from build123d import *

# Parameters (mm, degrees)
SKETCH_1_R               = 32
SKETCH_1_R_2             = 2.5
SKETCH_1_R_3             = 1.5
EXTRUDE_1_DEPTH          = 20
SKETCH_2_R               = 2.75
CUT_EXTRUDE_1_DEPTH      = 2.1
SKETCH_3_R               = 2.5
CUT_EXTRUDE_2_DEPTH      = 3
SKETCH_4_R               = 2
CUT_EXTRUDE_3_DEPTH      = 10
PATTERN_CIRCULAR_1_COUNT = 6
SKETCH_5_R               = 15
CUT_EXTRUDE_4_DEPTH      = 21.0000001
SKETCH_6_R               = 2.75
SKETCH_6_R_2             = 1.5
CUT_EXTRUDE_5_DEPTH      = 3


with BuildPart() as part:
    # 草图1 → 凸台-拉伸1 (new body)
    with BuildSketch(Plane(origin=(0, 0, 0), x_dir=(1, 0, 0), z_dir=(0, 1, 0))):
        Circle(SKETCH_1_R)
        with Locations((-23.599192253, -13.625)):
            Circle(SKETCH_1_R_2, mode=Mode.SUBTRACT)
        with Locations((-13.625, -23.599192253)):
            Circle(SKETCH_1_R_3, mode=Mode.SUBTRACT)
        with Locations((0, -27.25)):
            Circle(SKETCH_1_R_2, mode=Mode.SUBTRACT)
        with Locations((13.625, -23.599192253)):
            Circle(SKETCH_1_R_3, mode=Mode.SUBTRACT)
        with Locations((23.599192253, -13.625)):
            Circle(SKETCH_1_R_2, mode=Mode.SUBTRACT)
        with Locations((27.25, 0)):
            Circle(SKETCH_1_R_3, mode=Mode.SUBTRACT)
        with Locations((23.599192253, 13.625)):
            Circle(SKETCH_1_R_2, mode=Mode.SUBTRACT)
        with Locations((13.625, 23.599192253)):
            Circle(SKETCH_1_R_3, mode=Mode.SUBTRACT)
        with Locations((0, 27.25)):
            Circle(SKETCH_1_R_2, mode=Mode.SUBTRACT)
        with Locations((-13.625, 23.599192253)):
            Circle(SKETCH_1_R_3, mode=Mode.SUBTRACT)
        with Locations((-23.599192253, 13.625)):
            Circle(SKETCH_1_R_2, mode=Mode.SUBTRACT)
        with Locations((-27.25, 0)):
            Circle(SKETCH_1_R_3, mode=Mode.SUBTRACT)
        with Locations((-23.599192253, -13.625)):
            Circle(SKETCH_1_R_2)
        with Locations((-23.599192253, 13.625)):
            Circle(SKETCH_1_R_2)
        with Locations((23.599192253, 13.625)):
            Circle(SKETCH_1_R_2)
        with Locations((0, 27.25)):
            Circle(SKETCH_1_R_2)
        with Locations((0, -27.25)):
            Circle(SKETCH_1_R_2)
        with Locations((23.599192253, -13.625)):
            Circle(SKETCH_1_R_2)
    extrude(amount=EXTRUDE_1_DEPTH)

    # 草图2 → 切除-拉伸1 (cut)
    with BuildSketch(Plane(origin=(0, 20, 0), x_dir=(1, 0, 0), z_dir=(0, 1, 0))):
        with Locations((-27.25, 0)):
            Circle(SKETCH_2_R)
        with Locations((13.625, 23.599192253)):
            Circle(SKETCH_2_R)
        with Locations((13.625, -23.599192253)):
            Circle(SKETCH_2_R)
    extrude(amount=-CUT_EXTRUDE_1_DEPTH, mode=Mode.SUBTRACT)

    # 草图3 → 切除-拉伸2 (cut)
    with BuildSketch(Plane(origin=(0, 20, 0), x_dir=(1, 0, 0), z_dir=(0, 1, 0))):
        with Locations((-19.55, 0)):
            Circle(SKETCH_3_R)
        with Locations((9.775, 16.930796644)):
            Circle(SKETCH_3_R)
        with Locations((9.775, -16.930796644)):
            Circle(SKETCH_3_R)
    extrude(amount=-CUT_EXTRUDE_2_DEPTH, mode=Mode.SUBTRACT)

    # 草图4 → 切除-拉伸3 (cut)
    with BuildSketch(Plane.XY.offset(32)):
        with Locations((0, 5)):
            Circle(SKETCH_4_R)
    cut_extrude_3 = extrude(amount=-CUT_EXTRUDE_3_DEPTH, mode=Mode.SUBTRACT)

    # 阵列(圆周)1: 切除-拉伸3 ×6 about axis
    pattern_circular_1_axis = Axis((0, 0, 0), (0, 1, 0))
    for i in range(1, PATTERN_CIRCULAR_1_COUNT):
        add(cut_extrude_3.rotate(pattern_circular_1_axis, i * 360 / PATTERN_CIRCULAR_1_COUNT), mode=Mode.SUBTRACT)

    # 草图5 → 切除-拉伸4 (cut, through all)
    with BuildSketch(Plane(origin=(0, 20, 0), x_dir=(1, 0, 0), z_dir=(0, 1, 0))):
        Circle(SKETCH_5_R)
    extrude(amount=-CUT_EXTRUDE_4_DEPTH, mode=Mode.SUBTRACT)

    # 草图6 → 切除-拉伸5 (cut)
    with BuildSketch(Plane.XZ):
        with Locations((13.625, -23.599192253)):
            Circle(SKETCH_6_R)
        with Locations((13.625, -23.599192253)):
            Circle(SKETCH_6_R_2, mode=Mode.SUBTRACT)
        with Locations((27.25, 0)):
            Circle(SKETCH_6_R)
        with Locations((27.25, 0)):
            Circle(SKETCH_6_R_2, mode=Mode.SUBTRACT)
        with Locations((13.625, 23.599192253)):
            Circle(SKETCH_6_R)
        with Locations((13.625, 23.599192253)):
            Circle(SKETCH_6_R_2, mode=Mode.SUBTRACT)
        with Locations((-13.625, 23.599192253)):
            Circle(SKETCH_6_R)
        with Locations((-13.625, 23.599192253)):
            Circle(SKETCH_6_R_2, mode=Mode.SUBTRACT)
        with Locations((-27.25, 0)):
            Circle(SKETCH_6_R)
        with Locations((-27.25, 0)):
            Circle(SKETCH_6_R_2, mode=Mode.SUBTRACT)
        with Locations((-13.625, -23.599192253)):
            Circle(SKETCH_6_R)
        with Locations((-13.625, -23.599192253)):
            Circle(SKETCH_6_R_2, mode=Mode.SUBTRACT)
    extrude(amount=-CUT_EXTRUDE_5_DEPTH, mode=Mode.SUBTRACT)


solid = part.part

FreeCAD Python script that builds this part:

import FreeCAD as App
import Part
import Sketcher
from FreeCAD import Vector

doc = App.newDocument("Part")
body = doc.addObject("PartDesign::Body", "Body")

sketch1 = body.newObject("Sketcher::SketchObject", "Sketch")
sketch1.AttachmentSupport = (doc.getObject("XZ_Plane"), [""])
sketch1.MapMode = "FlatFace"
sketch1.addGeometry(Part.Circle(Vector(0, 0, 0), Vector(0, 0, 1), 32), False)
sketch1.addGeometry(Part.Circle(Vector(-13.6, 23.6, 0), Vector(0, 0, 1), 1.5), False)
sketch1.addGeometry(Part.Circle(Vector(13.6, 23.6, 0), Vector(0, 0, 1), 1.5), False)
sketch1.addGeometry(Part.Circle(Vector(-27.2, 0, 0), Vector(0, 0, 1), 1.5), False)
sketch1.addGeometry(Part.Circle(Vector(-13.6, -23.6, 0), Vector(0, 0, 1), 1.5), False)
sketch1.addGeometry(Part.Circle(Vector(27.2, 0, 0), Vector(0, 0, 1), 1.5), False)
sketch1.addGeometry(Part.Circle(Vector(13.6, -23.6, 0), Vector(0, 0, 1), 1.5), False)
sketch1.addConstraint(Sketcher.Constraint("Coincident", 0, 3, -1, 1))
sketch1.addConstraint(Sketcher.Constraint("Equal", 1, 2))
sketch1.addConstraint(Sketcher.Constraint("Equal", 2, 3))
sketch1.addConstraint(Sketcher.Constraint("Equal", 3, 4))
sketch1.addConstraint(Sketcher.Constraint("Equal", 4, 5))
sketch1.addConstraint(Sketcher.Constraint("Equal", 5, 6))
sketch1.addConstraint(Sketcher.Constraint("Symmetric", 2, 3, 4, 3, -1, 1))
sketch1.addConstraint(Sketcher.Constraint("Symmetric", 3, 3, 5, 3, -1, 1))
sketch1.addConstraint(Sketcher.Constraint("Symmetric", 1, 3, 6, 3, -1, 1))
sketch1.addConstraint(Sketcher.Constraint("Symmetric", 1, 3, 2, 3, -2))
sketch1.addConstraint(Sketcher.Constraint("PointOnObject", 3, 3, -1))
sketch1.addConstraint(Sketcher.Constraint("Diameter", 0, 64.0))
sketch1.addConstraint(Sketcher.Constraint("Diameter", 1, 3.0))
sketch1.addConstraint(Sketcher.Constraint("DistanceX", 3, 3, 5, 3, 54.5))
sketch1.addConstraint(Sketcher.Constraint("DistanceX", 1, 3, 2, 3, 27.25))
sketch1.addConstraint(Sketcher.Constraint("DistanceY", -1, 1, 1, 3, 23.599192))
pad1 = body.newObject("PartDesign::Pad", "Pad")
pad1.Profile = sketch1
pad1.Length = 20
pad1.Reversed = True

sketch2 = body.newObject("Sketcher::SketchObject", "Sketch001")
sketch2.AttachmentSupport = (doc.getObject("XZ_Plane"), [""])
sketch2.MapMode = "FlatFace"
sketch2.AttachmentOffset = App.Placement(Vector(0, 0, -20), App.Rotation())
sketch2.addGeometry(Part.Circle(Vector(-27.2, 0, 0), Vector(0, 0, 1), 2.8), False)
sketch2.addGeometry(Part.Circle(Vector(13.6, -23.6, 0), Vector(0, 0, 1), 2.8), False)
sketch2.addGeometry(Part.Circle(Vector(13.6, 23.6, 0), Vector(0, 0, 1), 2.8), False)
sketch2.addConstraint(Sketcher.Constraint("Equal", 0, 1))
sketch2.addConstraint(Sketcher.Constraint("Equal", 1, 2))
sketch2.addConstraint(Sketcher.Constraint("Symmetric", 1, 3, 2, 3, -1))
sketch2.addConstraint(Sketcher.Constraint("PointOnObject", 0, 3, -1))
sketch2.addConstraint(Sketcher.Constraint("Diameter", 0, 5.5))
sketch2.addConstraint(Sketcher.Constraint("DistanceX", 0, 3, -1, 1, 27.25))
sketch2.addConstraint(Sketcher.Constraint("DistanceX", -1, 1, 1, 3, 13.625))
sketch2.addConstraint(Sketcher.Constraint("DistanceY", 1, 3, -1, 1, 23.599192))
pocket1 = body.newObject("PartDesign::Pocket", "Pocket")
pocket1.Profile = sketch2
pocket1.Length = 2.1
pocket1.Reversed = True

sketch3 = body.newObject("Sketcher::SketchObject", "Sketch002")
sketch3.AttachmentSupport = (doc.getObject("XZ_Plane"), [""])
sketch3.MapMode = "FlatFace"
sketch3.AttachmentOffset = App.Placement(Vector(0, 0, -20), App.Rotation())
sketch3.addGeometry(Part.Circle(Vector(-19.6, 0, 0), Vector(0, 0, 1), 2.5), False)
sketch3.addGeometry(Part.Circle(Vector(9.8, -16.9, 0), Vector(0, 0, 1), 2.5), False)
sketch3.addGeometry(Part.Circle(Vector(9.8, 16.9, 0), Vector(0, 0, 1), 2.5), False)
sketch3.addConstraint(Sketcher.Constraint("Equal", 0, 1))
sketch3.addConstraint(Sketcher.Constraint("Equal", 1, 2))
sketch3.addConstraint(Sketcher.Constraint("Symmetric", 1, 3, 2, 3, -1))
sketch3.addConstraint(Sketcher.Constraint("PointOnObject", 0, 3, -1))
sketch3.addConstraint(Sketcher.Constraint("Diameter", 0, 5.0))
sketch3.addConstraint(Sketcher.Constraint("DistanceX", 0, 3, -1, 1, 19.55))
sketch3.addConstraint(Sketcher.Constraint("DistanceX", -1, 1, 1, 3, 9.775))
sketch3.addConstraint(Sketcher.Constraint("DistanceY", 1, 3, -1, 1, 16.930797))
pocket2 = body.newObject("PartDesign::Pocket", "Pocket001")
pocket2.Profile = sketch3
pocket2.Length = 3
pocket2.Reversed = True

sketch4 = body.newObject("Sketcher::SketchObject", "Sketch003")
sketch4.AttachmentSupport = (doc.getObject("XY_Plane"), [""])
sketch4.MapMode = "FlatFace"
sketch4.AttachmentOffset = App.Placement(Vector(0, 0, 32), App.Rotation())
sketch4.addGeometry(Part.Circle(Vector(0, 5, 0), Vector(0, 0, 1), 2), False)
sketch4.addConstraint(Sketcher.Constraint("PointOnObject", 0, 3, -2))
sketch4.addConstraint(Sketcher.Constraint("Diameter", 0, 4.0))
sketch4.addConstraint(Sketcher.Constraint("DistanceY", -1, 1, 0, 3, 5.0))
pocket3 = body.newObject("PartDesign::Pocket", "Pocket002")
pocket3.Profile = sketch4
pocket3.Length = 10
doc.recompute()

polarpattern = body.newObject("PartDesign::PolarPattern", "PolarPattern")
polarpattern.Originals = [pocket3]
polarpattern.Axis = (doc.getObject("Y_Axis"), [""])
polarpattern.Angle = 360
polarpattern.Occurrences = 6
body.Tip = polarpattern

sketch5 = body.newObject("Sketcher::SketchObject", "Sketch004")
sketch5.AttachmentSupport = (doc.getObject("XZ_Plane"), [""])
sketch5.MapMode = "FlatFace"
sketch5.AttachmentOffset = App.Placement(Vector(0, 0, -20), App.Rotation())
sketch5.addGeometry(Part.Circle(Vector(0, 0, 0), Vector(0, 0, 1), 15), False)
sketch5.addConstraint(Sketcher.Constraint("Coincident", 0, 3, -1, 1))
sketch5.addConstraint(Sketcher.Constraint("Diameter", 0, 30.0))
pocket4 = body.newObject("PartDesign::Pocket", "Pocket003")
pocket4.Profile = sketch5
pocket4.Type = "ThroughAll"
pocket4.Reversed = True

sketch6 = body.newObject("Sketcher::SketchObject", "Sketch005")
sketch6.AttachmentSupport = (doc.getObject("XZ_Plane"), [""])
sketch6.MapMode = "FlatFace"
sketch6.addGeometry(Part.Circle(Vector(13.6, -23.6, 0), Vector(0, 0, 1), 2.8), False)
sketch6.addGeometry(Part.Circle(Vector(13.6, -23.6, 0), Vector(0, 0, 1), 1.5), False)
sketch6.addGeometry(Part.Circle(Vector(27.2, 0, 0), Vector(0, 0, 1), 2.8), False)
sketch6.addGeometry(Part.Circle(Vector(27.2, 0, 0), Vector(0, 0, 1), 1.5), False)
sketch6.addGeometry(Part.Circle(Vector(13.6, 23.6, 0), Vector(0, 0, 1), 2.8), False)
sketch6.addGeometry(Part.Circle(Vector(13.6, 23.6, 0), Vector(0, 0, 1), 1.5), False)
sketch6.addGeometry(Part.Circle(Vector(-13.6, 23.6, 0), Vector(0, 0, 1), 2.8), False)
sketch6.addGeometry(Part.Circle(Vector(-13.6, 23.6, 0), Vector(0, 0, 1), 1.5), False)
sketch6.addGeometry(Part.Circle(Vector(-27.2, 0, 0), Vector(0, 0, 1), 2.8), False)
sketch6.addGeometry(Part.Circle(Vector(-27.2, 0, 0), Vector(0, 0, 1), 1.5), False)
sketch6.addGeometry(Part.Circle(Vector(-13.6, -23.6, 0), Vector(0, 0, 1), 2.8), False)
sketch6.addGeometry(Part.Circle(Vector(-13.6, -23.6, 0), Vector(0, 0, 1), 1.5), False)
sketch6.addConstraint(Sketcher.Constraint("Coincident", 1, 3, 0, 3))
sketch6.addConstraint(Sketcher.Constraint("Coincident", 3, 3, 2, 3))
sketch6.addConstraint(Sketcher.Constraint("Coincident", 5, 3, 4, 3))
sketch6.addConstraint(Sketcher.Constraint("Coincident", 7, 3, 6, 3))
sketch6.addConstraint(Sketcher.Constraint("Coincident", 9, 3, 8, 3))
sketch6.addConstraint(Sketcher.Constraint("Coincident", 11, 3, 10, 3))
sketch6.addConstraint(Sketcher.Constraint("Equal", 0, 2))
sketch6.addConstraint(Sketcher.Constraint("Equal", 1, 3))
sketch6.addConstraint(Sketcher.Constraint("Equal", 2, 4))
sketch6.addConstraint(Sketcher.Constraint("Equal", 3, 5))
sketch6.addConstraint(Sketcher.Constraint("Equal", 4, 6))
sketch6.addConstraint(Sketcher.Constraint("Equal", 5, 7))
sketch6.addConstraint(Sketcher.Constraint("Equal", 6, 8))
sketch6.addConstraint(Sketcher.Constraint("Equal", 7, 9))
sketch6.addConstraint(Sketcher.Constraint("Equal", 8, 10))
sketch6.addConstraint(Sketcher.Constraint("Equal", 9, 11))
sketch6.addConstraint(Sketcher.Constraint("Symmetric", 0, 3, 6, 3, -1, 1))
sketch6.addConstraint(Sketcher.Constraint("Symmetric", 2, 3, 8, 3, -1, 1))
sketch6.addConstraint(Sketcher.Constraint("Symmetric", 4, 3, 10, 3, -1, 1))
sketch6.addConstraint(Sketcher.Constraint("Symmetric", 4, 3, 6, 3, -2))
sketch6.addConstraint(Sketcher.Constraint("PointOnObject", 2, 3, -1))
sketch6.addConstraint(Sketcher.Constraint("Diameter", 1, 3.0))
sketch6.addConstraint(Sketcher.Constraint("Diameter", 0, 5.5))
sketch6.addConstraint(Sketcher.Constraint("DistanceX", -1, 1, 2, 3, 27.25))
sketch6.addConstraint(Sketcher.Constraint("DistanceX", 6, 3, 4, 3, 27.25))
sketch6.addConstraint(Sketcher.Constraint("DistanceY", 0, 3, -1, 1, 23.599192))
pocket5 = body.newObject("PartDesign::Pocket", "Pocket004")
pocket5.Profile = sketch6
pocket5.Length = 3

doc.recompute()
